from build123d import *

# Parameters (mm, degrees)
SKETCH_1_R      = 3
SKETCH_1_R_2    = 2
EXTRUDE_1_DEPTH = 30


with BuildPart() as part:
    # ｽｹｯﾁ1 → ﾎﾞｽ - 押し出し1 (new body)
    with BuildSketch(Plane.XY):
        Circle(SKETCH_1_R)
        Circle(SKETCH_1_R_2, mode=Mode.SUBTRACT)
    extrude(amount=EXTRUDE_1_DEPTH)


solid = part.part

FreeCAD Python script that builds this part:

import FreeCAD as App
import Part
import Sketcher

V = App.Vector
Q = App.Units.Quantity

doc = App.newDocument("Part")
params = doc.addObject("Spreadsheet::Sheet", "Params")
for row, (alias, value) in enumerate([
    ("sketch1_diameter", "6 mm"),
    ("sketch1_diameter2", "4 mm"),
    ("pad1_length", "30 mm"),
], start=1):
    params.set(f"A{row}", alias)
    params.set(f"B{row}", "=" + value)
    params.setAlias(f"B{row}", alias)

body = doc.addObject("PartDesign::Body", "Body")

# Sketch on XY plane
sketch1 = body.newObject("Sketcher::SketchObject", "Sketch")
sketch1.AttachmentSupport = (doc.getObject("XY_Plane"), [""])
sketch1.MapMode = "FlatFace"
sketch1.addGeometry([
    Part.Circle(V(0, 0, 0), V(0, 0, 1), 3),
    Part.Circle(V(0, 0, 0), V(0, 0, 1), 2),
], False)
sketch1.addConstraint([
    Sketcher.Constraint("Coincident", 0, 3, -1, 1),
    Sketcher.Constraint("Coincident", 1, 3, -1, 1),
    Sketcher.Constraint("Diameter", 0, Q("6 mm")),
    Sketcher.Constraint("Diameter", 1, Q("4 mm")),
])
sketch1.setExpression("Constraints[2]", "Params.sketch1_diameter")
sketch1.setExpression("Constraints[3]", "Params.sketch1_diameter2")
pad1 = body.newObject("PartDesign::Pad", "Pad")
pad1.Profile = sketch1
pad1.setExpression("Length", "Params.pad1_length")

doc.recompute()
